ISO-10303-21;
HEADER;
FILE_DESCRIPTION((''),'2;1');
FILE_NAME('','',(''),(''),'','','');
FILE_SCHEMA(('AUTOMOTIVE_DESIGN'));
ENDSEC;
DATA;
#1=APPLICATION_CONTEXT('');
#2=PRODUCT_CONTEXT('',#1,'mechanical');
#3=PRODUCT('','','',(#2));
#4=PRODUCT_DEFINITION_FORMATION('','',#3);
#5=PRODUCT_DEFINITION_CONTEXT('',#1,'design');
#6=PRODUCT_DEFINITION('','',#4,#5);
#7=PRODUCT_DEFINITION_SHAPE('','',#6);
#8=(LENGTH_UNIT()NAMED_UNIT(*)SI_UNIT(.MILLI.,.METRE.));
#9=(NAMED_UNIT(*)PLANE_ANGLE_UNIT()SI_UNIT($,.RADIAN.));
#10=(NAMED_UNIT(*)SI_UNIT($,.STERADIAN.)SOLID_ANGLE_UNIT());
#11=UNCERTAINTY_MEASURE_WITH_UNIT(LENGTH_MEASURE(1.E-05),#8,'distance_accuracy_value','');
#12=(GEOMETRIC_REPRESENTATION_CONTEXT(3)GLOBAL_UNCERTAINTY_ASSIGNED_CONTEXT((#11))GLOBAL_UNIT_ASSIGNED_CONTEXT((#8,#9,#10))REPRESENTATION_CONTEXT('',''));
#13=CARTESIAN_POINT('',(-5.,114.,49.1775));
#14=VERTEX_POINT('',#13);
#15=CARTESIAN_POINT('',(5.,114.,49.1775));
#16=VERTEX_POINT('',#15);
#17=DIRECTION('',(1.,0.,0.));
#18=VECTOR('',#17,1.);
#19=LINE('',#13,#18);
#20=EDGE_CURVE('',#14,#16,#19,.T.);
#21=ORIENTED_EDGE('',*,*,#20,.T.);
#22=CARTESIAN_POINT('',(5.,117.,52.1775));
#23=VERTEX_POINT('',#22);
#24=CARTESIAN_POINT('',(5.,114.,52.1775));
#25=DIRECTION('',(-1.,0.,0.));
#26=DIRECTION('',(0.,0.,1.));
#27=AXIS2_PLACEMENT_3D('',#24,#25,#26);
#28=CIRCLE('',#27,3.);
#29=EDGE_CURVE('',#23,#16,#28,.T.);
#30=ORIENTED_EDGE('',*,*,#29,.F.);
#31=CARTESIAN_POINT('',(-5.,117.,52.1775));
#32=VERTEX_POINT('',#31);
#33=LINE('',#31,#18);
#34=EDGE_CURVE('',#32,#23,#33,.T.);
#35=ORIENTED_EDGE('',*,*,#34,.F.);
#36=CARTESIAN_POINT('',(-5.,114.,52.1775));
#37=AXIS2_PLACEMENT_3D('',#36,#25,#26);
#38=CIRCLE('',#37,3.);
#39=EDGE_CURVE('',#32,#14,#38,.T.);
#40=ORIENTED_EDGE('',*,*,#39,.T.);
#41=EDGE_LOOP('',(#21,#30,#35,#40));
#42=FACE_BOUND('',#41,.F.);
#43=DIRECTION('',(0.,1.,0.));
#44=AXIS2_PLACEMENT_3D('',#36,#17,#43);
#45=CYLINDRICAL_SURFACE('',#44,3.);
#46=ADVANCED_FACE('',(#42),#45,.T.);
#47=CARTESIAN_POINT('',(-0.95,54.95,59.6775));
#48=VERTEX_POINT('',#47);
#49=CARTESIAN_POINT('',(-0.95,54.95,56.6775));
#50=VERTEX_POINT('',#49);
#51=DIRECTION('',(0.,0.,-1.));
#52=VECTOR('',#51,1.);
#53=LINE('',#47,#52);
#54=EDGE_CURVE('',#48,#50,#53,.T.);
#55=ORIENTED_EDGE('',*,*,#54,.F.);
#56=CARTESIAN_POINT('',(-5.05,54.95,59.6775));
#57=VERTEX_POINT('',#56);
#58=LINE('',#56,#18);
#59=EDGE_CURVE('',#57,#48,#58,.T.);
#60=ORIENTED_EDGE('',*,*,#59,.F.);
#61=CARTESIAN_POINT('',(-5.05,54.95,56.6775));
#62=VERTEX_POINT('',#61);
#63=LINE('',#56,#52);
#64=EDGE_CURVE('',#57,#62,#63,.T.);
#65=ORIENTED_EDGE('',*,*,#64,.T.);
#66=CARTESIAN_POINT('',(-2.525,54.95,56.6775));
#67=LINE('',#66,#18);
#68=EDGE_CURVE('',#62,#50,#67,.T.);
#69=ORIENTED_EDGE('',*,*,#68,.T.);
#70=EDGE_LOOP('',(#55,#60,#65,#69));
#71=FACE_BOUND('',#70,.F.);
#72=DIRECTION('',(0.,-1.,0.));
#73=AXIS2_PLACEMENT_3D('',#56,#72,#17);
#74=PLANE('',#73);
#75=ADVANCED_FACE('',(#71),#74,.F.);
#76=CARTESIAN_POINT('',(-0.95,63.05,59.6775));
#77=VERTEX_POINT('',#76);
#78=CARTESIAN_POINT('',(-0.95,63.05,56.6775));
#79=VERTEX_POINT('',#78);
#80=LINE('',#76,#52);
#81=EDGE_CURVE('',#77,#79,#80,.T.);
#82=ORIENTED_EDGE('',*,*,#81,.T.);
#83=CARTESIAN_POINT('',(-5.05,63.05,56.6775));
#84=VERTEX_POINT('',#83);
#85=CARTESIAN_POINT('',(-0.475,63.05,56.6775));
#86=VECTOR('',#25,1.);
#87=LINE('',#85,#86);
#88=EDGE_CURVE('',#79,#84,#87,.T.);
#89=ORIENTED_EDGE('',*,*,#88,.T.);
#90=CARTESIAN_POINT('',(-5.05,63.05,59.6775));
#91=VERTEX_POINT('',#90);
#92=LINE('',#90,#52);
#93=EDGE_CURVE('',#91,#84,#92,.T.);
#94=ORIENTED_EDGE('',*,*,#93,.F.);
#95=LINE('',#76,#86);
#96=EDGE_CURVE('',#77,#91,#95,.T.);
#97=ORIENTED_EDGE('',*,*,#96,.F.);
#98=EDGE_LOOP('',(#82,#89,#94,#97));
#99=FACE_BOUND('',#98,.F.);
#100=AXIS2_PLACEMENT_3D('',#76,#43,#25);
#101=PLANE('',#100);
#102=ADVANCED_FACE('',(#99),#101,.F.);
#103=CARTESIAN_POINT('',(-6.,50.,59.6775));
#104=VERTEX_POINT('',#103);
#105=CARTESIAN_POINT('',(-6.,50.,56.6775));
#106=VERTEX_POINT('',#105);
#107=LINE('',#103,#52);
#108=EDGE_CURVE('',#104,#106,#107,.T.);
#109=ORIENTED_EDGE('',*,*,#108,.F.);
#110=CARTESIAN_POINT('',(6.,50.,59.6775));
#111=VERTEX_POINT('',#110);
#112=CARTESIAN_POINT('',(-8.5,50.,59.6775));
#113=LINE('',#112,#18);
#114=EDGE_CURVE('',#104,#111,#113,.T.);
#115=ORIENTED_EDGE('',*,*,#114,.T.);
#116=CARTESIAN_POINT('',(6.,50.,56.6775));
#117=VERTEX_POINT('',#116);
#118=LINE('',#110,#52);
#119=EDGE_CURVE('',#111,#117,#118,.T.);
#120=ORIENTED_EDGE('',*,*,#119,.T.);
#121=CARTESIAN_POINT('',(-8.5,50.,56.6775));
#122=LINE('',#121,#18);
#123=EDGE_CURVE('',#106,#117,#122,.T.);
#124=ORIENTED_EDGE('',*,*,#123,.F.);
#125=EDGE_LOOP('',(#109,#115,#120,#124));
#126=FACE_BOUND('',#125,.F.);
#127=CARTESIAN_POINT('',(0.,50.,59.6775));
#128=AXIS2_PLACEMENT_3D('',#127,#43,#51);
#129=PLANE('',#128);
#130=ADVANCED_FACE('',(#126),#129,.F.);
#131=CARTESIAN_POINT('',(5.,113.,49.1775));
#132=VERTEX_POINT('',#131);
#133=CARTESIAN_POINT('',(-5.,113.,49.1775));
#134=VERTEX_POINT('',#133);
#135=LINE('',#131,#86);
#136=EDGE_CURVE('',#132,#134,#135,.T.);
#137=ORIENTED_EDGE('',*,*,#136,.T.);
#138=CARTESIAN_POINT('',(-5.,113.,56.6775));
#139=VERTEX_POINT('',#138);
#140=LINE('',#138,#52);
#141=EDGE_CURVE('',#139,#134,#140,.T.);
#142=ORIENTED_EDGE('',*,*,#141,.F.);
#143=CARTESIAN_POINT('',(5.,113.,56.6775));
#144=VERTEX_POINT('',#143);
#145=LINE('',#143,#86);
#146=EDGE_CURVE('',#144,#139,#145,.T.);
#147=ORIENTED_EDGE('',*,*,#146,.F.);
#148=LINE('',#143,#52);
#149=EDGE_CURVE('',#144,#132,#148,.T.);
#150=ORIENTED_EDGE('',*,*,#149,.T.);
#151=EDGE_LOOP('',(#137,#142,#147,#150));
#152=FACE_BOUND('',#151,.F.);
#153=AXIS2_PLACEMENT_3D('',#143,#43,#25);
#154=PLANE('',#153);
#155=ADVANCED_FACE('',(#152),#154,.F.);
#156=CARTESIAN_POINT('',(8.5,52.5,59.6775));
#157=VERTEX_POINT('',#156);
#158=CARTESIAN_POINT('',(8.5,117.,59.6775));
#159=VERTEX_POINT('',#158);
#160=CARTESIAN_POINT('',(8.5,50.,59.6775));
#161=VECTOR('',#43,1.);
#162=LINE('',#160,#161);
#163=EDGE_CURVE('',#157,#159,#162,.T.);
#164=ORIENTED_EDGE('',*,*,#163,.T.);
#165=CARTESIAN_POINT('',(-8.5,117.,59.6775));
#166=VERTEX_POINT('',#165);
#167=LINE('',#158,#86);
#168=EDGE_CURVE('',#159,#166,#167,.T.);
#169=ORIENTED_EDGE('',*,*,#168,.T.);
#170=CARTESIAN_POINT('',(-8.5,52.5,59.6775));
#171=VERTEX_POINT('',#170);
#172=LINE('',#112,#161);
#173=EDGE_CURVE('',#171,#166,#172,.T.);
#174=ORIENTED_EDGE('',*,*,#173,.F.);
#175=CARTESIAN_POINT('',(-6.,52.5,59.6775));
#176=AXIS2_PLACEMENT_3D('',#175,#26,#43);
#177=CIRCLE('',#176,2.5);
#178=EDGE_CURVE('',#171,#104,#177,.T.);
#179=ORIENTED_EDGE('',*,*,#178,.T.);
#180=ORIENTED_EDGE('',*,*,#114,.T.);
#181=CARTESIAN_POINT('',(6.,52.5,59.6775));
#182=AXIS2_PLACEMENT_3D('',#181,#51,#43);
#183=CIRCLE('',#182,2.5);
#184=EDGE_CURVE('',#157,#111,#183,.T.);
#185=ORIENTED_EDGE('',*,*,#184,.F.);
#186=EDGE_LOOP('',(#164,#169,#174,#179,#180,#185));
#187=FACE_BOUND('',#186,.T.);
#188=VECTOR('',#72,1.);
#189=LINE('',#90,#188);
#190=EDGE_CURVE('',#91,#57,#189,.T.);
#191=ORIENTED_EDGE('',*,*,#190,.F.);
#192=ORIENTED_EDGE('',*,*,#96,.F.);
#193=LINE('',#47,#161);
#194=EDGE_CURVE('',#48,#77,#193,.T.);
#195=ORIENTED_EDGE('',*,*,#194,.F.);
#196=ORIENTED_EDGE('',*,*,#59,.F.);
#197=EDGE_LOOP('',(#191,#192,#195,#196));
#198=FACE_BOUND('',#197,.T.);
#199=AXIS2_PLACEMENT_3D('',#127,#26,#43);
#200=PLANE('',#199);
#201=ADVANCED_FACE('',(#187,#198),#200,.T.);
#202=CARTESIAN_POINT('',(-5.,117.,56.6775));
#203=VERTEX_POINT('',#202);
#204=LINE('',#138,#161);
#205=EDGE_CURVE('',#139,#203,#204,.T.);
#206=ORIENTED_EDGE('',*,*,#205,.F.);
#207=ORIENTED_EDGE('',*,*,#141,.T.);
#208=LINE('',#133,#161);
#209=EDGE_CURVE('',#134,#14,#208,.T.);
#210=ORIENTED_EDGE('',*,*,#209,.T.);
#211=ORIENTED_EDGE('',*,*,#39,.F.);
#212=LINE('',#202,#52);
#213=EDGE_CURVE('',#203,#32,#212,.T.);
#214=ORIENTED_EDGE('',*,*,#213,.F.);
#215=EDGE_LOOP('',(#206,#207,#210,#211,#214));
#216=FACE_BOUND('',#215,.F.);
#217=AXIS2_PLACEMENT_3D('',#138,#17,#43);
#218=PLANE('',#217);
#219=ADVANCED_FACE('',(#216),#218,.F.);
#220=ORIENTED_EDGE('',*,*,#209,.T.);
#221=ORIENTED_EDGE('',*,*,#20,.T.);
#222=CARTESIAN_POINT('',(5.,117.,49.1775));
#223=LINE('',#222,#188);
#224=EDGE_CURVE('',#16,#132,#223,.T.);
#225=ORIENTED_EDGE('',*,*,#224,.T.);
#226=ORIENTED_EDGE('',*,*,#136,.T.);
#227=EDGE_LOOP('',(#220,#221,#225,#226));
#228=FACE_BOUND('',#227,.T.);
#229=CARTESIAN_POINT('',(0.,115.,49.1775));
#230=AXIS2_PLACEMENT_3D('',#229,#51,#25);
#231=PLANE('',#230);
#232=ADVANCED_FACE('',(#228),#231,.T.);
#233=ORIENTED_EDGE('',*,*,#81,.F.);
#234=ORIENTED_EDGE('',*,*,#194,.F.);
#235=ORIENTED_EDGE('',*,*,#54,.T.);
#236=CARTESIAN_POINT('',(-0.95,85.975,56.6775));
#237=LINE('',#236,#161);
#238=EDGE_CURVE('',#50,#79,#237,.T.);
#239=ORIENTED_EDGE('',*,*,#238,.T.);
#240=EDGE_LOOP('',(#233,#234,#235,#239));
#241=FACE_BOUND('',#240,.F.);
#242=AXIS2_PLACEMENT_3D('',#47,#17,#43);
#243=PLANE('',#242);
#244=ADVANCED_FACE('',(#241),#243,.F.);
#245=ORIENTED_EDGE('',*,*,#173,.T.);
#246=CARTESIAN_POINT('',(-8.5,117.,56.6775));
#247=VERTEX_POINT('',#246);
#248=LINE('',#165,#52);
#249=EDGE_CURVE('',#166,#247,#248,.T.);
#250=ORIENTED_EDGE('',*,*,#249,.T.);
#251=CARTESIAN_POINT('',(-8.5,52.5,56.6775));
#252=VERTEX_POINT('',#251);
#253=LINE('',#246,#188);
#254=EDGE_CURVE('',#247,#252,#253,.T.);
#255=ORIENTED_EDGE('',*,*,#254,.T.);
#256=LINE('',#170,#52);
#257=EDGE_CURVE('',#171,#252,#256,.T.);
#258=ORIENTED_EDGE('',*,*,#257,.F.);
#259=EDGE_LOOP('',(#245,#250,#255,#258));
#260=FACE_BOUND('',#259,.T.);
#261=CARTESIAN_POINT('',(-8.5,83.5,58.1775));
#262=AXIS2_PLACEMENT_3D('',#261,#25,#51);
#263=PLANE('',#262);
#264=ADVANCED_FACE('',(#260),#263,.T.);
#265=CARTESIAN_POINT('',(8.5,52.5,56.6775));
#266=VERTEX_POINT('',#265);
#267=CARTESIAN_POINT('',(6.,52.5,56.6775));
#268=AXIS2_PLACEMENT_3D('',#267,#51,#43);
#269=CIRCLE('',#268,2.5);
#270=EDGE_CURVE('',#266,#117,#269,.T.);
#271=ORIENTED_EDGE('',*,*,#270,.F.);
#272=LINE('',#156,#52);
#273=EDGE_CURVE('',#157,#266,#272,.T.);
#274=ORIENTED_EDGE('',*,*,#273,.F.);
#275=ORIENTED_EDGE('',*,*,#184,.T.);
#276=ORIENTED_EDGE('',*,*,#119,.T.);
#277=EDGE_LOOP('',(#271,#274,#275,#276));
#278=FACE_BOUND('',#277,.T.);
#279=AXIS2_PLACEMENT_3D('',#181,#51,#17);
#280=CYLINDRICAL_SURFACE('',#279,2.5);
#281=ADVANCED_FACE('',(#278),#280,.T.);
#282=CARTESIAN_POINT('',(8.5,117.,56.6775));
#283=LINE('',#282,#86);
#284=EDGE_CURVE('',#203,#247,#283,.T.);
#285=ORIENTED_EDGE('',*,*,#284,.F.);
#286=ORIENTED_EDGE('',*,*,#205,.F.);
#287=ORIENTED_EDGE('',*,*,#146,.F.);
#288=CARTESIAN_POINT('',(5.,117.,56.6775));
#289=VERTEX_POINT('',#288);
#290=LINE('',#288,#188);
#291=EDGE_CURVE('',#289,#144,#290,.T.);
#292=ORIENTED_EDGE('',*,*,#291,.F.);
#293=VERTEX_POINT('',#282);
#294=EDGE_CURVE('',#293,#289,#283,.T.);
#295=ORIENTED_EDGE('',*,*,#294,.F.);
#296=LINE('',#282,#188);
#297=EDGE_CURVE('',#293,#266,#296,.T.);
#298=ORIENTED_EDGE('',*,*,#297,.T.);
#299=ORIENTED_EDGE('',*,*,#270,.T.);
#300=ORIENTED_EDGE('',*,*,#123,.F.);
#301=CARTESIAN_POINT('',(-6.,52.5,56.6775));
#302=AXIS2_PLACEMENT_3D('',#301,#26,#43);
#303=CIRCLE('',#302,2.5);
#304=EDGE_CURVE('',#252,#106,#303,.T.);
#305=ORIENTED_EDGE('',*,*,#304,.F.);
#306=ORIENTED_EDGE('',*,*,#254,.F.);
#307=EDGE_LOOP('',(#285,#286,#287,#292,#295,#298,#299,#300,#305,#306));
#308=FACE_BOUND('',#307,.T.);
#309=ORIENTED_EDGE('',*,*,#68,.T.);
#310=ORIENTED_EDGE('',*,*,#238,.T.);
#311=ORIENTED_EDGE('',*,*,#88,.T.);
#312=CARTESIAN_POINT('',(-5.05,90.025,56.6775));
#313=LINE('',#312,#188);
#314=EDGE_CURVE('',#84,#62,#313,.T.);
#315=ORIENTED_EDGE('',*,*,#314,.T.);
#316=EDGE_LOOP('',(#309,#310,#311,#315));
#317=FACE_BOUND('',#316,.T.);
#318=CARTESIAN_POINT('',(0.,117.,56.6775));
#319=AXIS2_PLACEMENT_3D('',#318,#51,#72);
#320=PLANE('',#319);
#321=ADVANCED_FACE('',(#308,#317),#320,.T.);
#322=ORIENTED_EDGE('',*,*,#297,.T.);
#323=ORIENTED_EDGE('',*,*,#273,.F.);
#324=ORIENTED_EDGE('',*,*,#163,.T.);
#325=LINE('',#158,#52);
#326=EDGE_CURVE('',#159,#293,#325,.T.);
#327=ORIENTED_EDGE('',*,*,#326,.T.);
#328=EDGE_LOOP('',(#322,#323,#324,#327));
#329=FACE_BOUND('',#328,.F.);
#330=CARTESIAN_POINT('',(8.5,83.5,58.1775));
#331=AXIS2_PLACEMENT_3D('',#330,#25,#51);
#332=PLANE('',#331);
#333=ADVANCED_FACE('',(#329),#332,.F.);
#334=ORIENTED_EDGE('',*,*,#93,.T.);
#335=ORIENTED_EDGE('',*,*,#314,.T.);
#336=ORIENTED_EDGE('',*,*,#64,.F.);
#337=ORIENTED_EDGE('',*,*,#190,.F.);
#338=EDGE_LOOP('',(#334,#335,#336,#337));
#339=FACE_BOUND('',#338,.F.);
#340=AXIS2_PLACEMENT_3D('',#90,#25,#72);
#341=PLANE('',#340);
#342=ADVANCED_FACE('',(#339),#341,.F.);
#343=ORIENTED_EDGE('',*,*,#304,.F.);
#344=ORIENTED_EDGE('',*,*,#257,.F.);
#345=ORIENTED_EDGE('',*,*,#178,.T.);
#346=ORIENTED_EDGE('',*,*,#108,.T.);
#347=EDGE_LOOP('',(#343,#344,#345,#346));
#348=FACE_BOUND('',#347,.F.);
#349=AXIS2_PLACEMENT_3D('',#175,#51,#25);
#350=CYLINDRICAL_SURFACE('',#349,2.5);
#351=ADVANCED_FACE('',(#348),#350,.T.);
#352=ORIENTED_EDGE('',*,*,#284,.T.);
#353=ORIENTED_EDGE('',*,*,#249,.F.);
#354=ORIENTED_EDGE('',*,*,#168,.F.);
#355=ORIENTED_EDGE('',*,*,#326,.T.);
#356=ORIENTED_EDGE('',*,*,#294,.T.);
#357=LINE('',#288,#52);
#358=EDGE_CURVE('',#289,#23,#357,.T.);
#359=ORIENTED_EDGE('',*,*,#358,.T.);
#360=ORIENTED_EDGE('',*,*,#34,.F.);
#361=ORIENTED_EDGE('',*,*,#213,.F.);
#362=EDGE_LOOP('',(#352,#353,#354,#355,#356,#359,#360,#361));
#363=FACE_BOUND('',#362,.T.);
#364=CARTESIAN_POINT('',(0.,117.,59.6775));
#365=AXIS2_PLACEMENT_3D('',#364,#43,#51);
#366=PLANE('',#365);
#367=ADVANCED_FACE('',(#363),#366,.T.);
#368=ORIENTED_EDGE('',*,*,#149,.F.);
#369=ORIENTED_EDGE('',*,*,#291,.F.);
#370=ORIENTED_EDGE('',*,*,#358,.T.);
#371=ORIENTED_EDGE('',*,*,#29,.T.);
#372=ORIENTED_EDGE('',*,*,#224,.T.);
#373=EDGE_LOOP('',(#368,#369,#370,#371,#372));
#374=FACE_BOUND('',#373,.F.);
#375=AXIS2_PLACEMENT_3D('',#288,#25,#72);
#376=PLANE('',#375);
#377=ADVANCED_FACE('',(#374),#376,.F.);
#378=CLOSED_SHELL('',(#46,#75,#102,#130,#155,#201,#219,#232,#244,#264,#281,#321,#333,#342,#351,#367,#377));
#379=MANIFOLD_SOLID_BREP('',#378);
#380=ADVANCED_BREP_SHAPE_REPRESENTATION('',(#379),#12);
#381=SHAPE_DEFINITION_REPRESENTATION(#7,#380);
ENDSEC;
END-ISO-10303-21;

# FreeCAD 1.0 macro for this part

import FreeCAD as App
import Part
import Sketcher

V = App.Vector


def edges_at(feature, points):
    """Names of the edges that pass closest to the given points."""
    edges = feature.Shape.Edges
    near = lambda p: min(range(len(edges)), key=lambda i: edges[i].distToShape(Part.Vertex(*p))[0])
    return sorted({f"Edge{near(p) + 1}" for p in points})


def add_polygon(sketch, points):
    """Adds a closed chain of lines whose ends are joined by coincident constraints."""
    first, n = sketch.GeometryCount, len(points)
    for a, b in zip(points, points[1:] + points[:1]):
        sketch.addGeometry(Part.LineSegment(App.Vector(*a, 0), App.Vector(*b, 0)), False)
    for i in range(n):
        sketch.addConstraint(Sketcher.Constraint("Coincident", first + i, 2, first + (i + 1) % n, 1))

doc = App.newDocument("Part")
body = doc.addObject("PartDesign::Body", "Body")

# Sketch on YZ plane
sketch1 = body.newObject("Sketcher::SketchObject", "Sketch")
sketch1.AttachmentSupport = (doc.getObject("YZ_Plane"), [""])
sketch1.MapMode = "FlatFace"
add_polygon(sketch1, [(117, 59.6775), (50, 59.6775), (50, 56.6775), (117, 56.6775)])  # lines 0-3
sketch1.addConstraint(Sketcher.Constraint("Horizontal", 0))
sketch1.addConstraint(Sketcher.Constraint("Vertical", 1))
sketch1.addConstraint(Sketcher.Constraint("Horizontal", 2))
sketch1.addConstraint(Sketcher.Constraint("Vertical", 3))
sketch1.addConstraint(Sketcher.Constraint("DistanceX", 0, 2, 0, 1, 67.0))
sketch1.addConstraint(Sketcher.Constraint("DistanceY", 1, 2, 1, 1, 3.0))
sketch1.addConstraint(Sketcher.Constraint("DistanceX", -1, 1, 0, 2, 50.0))
sketch1.addConstraint(Sketcher.Constraint("DistanceY", -1, 1, 0, 2, 59.6775))
pad1 = body.newObject("PartDesign::Pad", "Pad")
pad1.Profile = sketch1
pad1.Length = 17
pad1.Midplane = True

# Sketch on XY plane
sketch2 = body.newObject("Sketcher::SketchObject", "Sketch001")
sketch2.AttachmentSupport = (doc.getObject("XY_Plane"), [""])
sketch2.MapMode = "FlatFace"
sketch2.AttachmentOffset = App.Placement(V(0, 0, 56.6775), App.Rotation())
add_polygon(sketch2, [(5, 113), (-5, 113), (-5, 117), (5, 117)])  # lines 0-3
sketch2.addConstraint(Sketcher.Constraint("Horizontal", 0))
sketch2.addConstraint(Sketcher.Constraint("Vertical", 1))
sketch2.addConstraint(Sketcher.Constraint("Horizontal", 2))
sketch2.addConstraint(Sketcher.Constraint("Vertical", 3))
sketch2.addConstraint(Sketcher.Constraint("DistanceX", 0, 2, 0, 1, 10.0))
sketch2.addConstraint(Sketcher.Constraint("DistanceY", 1, 1, 1, 2, 4.0))
sketch2.addConstraint(Sketcher.Constraint("DistanceX", 0, 2, -1, 1, 5.0))
sketch2.addConstraint(Sketcher.Constraint("DistanceY", -1, 1, 0, 2, 113.0))
pad2 = body.newObject("PartDesign::Pad", "Pad001")
pad2.Profile = sketch2
pad2.Length = 7.5
pad2.Reversed = True
doc.recompute()

fillet = body.newObject("PartDesign::Fillet", "Fillet")
fillet.Base = (pad2, edges_at(pad2, [(0, 117, 49.178)]))
fillet.Radius = 3
doc.recompute()

fillet2 = body.newObject("PartDesign::Fillet", "Fillet001")
fillet2.Base = (fillet, edges_at(fillet, [(-8.5, 50, 58.178), (8.5, 50, 58.178)]))
fillet2.Radius = 2.5

# Sketch on XY plane
sketch3 = body.newObject("Sketcher::SketchObject", "Sketch002")
sketch3.AttachmentSupport = (doc.getObject("XY_Plane"), [""])
sketch3.MapMode = "FlatFace"
sketch3.AttachmentOffset = App.Placement(V(0, 0, 59.6775), App.Rotation())
add_polygon(sketch3, [(-5.05, 54.95), (-0.95, 54.95), (-0.95, 63.05), (-5.05, 63.05)])  # lines 0-3
sketch3.addConstraint(Sketcher.Constraint("Horizontal", 0))
sketch3.addConstraint(Sketcher.Constraint("Vertical", 1))
sketch3.addConstraint(Sketcher.Constraint("Horizontal", 2))
sketch3.addConstraint(Sketcher.Constraint("Vertical", 3))
sketch3.addConstraint(Sketcher.Constraint("DistanceX", 0, 1, 0, 2, 4.1))
sketch3.addConstraint(Sketcher.Constraint("DistanceY", 1, 1, 1, 2, 8.1))
sketch3.addConstraint(Sketcher.Constraint("DistanceX", 0, 2, -1, 1, 0.95))
sketch3.addConstraint(Sketcher.Constraint("DistanceY", -1, 1, 0, 2, 54.95))
pocket1 = body.newObject("PartDesign::Pocket", "Pocket")
pocket1.Profile = sketch3
pocket1.Type = "UpToFirst"

doc.recompute()
